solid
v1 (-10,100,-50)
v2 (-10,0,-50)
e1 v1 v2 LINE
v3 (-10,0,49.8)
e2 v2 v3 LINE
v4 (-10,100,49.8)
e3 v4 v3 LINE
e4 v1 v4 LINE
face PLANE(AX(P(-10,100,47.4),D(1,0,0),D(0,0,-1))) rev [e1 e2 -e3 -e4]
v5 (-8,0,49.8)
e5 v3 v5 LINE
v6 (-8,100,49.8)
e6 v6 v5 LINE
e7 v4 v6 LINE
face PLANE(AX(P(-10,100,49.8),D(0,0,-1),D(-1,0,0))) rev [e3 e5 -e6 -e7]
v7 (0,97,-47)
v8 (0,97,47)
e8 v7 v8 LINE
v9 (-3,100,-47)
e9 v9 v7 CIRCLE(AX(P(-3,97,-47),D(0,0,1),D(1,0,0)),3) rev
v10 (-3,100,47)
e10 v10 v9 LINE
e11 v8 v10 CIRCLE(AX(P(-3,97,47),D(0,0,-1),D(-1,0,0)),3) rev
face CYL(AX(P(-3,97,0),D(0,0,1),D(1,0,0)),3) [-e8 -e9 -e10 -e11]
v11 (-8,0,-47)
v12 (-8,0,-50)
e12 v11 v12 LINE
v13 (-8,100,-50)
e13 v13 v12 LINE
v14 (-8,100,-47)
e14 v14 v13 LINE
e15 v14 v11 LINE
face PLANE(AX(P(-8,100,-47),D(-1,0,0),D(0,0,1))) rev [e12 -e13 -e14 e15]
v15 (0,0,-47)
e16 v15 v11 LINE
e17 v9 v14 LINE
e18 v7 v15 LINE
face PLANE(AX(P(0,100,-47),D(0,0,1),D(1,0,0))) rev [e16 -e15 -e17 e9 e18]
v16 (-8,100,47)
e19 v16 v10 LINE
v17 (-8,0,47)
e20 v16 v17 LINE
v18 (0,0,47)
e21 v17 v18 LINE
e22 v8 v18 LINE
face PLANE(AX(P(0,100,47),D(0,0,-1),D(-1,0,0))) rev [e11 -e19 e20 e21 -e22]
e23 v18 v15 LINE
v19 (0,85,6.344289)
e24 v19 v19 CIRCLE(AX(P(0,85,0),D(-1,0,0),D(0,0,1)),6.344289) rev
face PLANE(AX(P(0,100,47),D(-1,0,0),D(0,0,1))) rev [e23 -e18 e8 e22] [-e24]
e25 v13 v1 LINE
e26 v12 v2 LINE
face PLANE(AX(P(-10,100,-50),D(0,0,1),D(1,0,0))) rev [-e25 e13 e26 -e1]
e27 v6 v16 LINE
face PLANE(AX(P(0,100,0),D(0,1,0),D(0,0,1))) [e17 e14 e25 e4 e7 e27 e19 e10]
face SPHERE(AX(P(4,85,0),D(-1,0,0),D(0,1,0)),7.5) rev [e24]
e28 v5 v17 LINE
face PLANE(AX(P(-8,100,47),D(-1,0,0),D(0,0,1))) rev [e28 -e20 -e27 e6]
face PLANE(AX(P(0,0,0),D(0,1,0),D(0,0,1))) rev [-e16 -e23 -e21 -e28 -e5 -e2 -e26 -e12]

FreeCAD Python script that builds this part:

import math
import FreeCAD as App
import Part
import Sketcher
from FreeCAD import Vector
Q = App.Units.Quantity


def edges_at(feature, points):
    """Names of the edges that pass closest to the given points."""
    edges = feature.Shape.Edges
    near = lambda p: min(range(len(edges)), key=lambda i: edges[i].distToShape(Part.Vertex(*p))[0])
    return sorted({f"Edge{near(p) + 1}" for p in points})

doc = App.newDocument("Part")
body = doc.addObject("PartDesign::Body", "Body")

# Sketch on XZ plane
sketch1 = body.newObject("Sketcher::SketchObject", "Sketch")
sketch1.AttachmentSupport = (doc.getObject("XZ_Plane"), [""])
sketch1.MapMode = "FlatFace"
sketch1.addGeometry([
    Part.LineSegment(Vector(-8, 47, 0), Vector(0, 47, 0)),  # 0
    Part.LineSegment(Vector(0, 47, 0), Vector(0, -47, 0)),  # 1
    Part.LineSegment(Vector(0, -47, 0), Vector(-8, -47, 0)),  # 2
    Part.LineSegment(Vector(-8, -47, 0), Vector(-8, -50, 0)),  # 3
    Part.LineSegment(Vector(-8, -50, 0), Vector(-10, -50, 0)),  # 4
    Part.LineSegment(Vector(-10, -50, 0), Vector(-10, 49.8, 0)),  # 5
    Part.LineSegment(Vector(-10, 49.8, 0), Vector(-8, 49.8, 0)),  # 6
    Part.LineSegment(Vector(-8, 49.8, 0), Vector(-8, 47, 0)),  # 7
], False)
sketch1.addConstraint([
    Sketcher.Constraint("Coincident", 0, 2, 1, 1),
    Sketcher.Constraint("Coincident", 1, 2, 2, 1),
    Sketcher.Constraint("Coincident", 2, 2, 3, 1),
    Sketcher.Constraint("Coincident", 3, 2, 4, 1),
    Sketcher.Constraint("Coincident", 4, 2, 5, 1),
    Sketcher.Constraint("Coincident", 5, 2, 6, 1),
    Sketcher.Constraint("Coincident", 6, 2, 7, 1),
    Sketcher.Constraint("Coincident", 7, 2, 0, 1),
    Sketcher.Constraint("Horizontal", 0),
    Sketcher.Constraint("Vertical", 1),
    Sketcher.Constraint("Horizontal", 2),
    Sketcher.Constraint("Vertical", 3),
    Sketcher.Constraint("Horizontal", 4),
    Sketcher.Constraint("Vertical", 5),
    Sketcher.Constraint("Horizontal", 6),
    Sketcher.Constraint("Vertical", 7),
    Sketcher.Constraint("Symmetric", 0, 2, 1, 2, -1, 1),
    Sketcher.Constraint("Vertical", 3, 2, 6, 2),
    Sketcher.Constraint("DistanceX", 0, 1, 0, 2, Q("8 mm")),
    Sketcher.Constraint("DistanceX", 4, 2, 4, 1, Q("2 mm")),
    Sketcher.Constraint("DistanceY", 1, 2, 1, 1, Q("94 mm")),
    Sketcher.Constraint("DistanceY", 3, 2, 3, 1, Q("3 mm")),
    Sketcher.Constraint("DistanceY", 5, 1, 5, 2, Q("99.8 mm")),
])
pad1 = body.newObject("PartDesign::Pad", "Pad")
pad1.Profile = sketch1
pad1.Length = 100
pad1.Reversed = True
doc.recompute()

fillet = body.newObject("PartDesign::Fillet", "Fillet")
fillet.Base = (pad1, edges_at(pad1, [(0, 100, 0)]))
fillet.Radius = 3

# Sketch on XY plane
sketch2 = body.newObject("Sketcher::SketchObject", "Sketch001")
sketch2.AttachmentSupport = (doc.getObject("XY_Plane"), [""])
sketch2.MapMode = "FlatFace"
sketch2.addGeometry([
    Part.LineSegment(Vector(-4, 85, 0), Vector(12, 85, 0)),
    Part.ArcOfCircle(Part.Circle(Vector(4, 85, 0), Vector(0, 0, 1), 8), math.radians(0), math.radians(180)),
], False)
sketch2.addGeometry(Part.LineSegment(Vector(-4, 85, 0), Vector(12, 85, 0)), True)  # axis
sketch2.addConstraint([
    Sketcher.Constraint("Coincident", 0, 1, 1, 2),
    Sketcher.Constraint("Coincident", 1, 1, 0, 2),
    Sketcher.Constraint("Horizontal", 0),
    Sketcher.Constraint("Horizontal", 2),
    Sketcher.Constraint("Coincident", 2, 1, 0, 1),
    Sketcher.Constraint("Horizontal", 1, 3, 0, 1),
    Sketcher.Constraint("Equal", 0, 2),
    Sketcher.Constraint("Radius", 1, Q("7.5 mm")),
    Sketcher.Constraint("DistanceX", -1, 1, 1, 3, Q("4 mm")),
    Sketcher.Constraint("DistanceY", -1, 1, 1, 3, Q("85 mm")),
])
groove = body.newObject("PartDesign::Groove", "Groove")
groove.Profile = sketch2
groove.ReferenceAxis = (sketch2, ["Axis0"])
groove.Angle = 360

doc.recompute()
